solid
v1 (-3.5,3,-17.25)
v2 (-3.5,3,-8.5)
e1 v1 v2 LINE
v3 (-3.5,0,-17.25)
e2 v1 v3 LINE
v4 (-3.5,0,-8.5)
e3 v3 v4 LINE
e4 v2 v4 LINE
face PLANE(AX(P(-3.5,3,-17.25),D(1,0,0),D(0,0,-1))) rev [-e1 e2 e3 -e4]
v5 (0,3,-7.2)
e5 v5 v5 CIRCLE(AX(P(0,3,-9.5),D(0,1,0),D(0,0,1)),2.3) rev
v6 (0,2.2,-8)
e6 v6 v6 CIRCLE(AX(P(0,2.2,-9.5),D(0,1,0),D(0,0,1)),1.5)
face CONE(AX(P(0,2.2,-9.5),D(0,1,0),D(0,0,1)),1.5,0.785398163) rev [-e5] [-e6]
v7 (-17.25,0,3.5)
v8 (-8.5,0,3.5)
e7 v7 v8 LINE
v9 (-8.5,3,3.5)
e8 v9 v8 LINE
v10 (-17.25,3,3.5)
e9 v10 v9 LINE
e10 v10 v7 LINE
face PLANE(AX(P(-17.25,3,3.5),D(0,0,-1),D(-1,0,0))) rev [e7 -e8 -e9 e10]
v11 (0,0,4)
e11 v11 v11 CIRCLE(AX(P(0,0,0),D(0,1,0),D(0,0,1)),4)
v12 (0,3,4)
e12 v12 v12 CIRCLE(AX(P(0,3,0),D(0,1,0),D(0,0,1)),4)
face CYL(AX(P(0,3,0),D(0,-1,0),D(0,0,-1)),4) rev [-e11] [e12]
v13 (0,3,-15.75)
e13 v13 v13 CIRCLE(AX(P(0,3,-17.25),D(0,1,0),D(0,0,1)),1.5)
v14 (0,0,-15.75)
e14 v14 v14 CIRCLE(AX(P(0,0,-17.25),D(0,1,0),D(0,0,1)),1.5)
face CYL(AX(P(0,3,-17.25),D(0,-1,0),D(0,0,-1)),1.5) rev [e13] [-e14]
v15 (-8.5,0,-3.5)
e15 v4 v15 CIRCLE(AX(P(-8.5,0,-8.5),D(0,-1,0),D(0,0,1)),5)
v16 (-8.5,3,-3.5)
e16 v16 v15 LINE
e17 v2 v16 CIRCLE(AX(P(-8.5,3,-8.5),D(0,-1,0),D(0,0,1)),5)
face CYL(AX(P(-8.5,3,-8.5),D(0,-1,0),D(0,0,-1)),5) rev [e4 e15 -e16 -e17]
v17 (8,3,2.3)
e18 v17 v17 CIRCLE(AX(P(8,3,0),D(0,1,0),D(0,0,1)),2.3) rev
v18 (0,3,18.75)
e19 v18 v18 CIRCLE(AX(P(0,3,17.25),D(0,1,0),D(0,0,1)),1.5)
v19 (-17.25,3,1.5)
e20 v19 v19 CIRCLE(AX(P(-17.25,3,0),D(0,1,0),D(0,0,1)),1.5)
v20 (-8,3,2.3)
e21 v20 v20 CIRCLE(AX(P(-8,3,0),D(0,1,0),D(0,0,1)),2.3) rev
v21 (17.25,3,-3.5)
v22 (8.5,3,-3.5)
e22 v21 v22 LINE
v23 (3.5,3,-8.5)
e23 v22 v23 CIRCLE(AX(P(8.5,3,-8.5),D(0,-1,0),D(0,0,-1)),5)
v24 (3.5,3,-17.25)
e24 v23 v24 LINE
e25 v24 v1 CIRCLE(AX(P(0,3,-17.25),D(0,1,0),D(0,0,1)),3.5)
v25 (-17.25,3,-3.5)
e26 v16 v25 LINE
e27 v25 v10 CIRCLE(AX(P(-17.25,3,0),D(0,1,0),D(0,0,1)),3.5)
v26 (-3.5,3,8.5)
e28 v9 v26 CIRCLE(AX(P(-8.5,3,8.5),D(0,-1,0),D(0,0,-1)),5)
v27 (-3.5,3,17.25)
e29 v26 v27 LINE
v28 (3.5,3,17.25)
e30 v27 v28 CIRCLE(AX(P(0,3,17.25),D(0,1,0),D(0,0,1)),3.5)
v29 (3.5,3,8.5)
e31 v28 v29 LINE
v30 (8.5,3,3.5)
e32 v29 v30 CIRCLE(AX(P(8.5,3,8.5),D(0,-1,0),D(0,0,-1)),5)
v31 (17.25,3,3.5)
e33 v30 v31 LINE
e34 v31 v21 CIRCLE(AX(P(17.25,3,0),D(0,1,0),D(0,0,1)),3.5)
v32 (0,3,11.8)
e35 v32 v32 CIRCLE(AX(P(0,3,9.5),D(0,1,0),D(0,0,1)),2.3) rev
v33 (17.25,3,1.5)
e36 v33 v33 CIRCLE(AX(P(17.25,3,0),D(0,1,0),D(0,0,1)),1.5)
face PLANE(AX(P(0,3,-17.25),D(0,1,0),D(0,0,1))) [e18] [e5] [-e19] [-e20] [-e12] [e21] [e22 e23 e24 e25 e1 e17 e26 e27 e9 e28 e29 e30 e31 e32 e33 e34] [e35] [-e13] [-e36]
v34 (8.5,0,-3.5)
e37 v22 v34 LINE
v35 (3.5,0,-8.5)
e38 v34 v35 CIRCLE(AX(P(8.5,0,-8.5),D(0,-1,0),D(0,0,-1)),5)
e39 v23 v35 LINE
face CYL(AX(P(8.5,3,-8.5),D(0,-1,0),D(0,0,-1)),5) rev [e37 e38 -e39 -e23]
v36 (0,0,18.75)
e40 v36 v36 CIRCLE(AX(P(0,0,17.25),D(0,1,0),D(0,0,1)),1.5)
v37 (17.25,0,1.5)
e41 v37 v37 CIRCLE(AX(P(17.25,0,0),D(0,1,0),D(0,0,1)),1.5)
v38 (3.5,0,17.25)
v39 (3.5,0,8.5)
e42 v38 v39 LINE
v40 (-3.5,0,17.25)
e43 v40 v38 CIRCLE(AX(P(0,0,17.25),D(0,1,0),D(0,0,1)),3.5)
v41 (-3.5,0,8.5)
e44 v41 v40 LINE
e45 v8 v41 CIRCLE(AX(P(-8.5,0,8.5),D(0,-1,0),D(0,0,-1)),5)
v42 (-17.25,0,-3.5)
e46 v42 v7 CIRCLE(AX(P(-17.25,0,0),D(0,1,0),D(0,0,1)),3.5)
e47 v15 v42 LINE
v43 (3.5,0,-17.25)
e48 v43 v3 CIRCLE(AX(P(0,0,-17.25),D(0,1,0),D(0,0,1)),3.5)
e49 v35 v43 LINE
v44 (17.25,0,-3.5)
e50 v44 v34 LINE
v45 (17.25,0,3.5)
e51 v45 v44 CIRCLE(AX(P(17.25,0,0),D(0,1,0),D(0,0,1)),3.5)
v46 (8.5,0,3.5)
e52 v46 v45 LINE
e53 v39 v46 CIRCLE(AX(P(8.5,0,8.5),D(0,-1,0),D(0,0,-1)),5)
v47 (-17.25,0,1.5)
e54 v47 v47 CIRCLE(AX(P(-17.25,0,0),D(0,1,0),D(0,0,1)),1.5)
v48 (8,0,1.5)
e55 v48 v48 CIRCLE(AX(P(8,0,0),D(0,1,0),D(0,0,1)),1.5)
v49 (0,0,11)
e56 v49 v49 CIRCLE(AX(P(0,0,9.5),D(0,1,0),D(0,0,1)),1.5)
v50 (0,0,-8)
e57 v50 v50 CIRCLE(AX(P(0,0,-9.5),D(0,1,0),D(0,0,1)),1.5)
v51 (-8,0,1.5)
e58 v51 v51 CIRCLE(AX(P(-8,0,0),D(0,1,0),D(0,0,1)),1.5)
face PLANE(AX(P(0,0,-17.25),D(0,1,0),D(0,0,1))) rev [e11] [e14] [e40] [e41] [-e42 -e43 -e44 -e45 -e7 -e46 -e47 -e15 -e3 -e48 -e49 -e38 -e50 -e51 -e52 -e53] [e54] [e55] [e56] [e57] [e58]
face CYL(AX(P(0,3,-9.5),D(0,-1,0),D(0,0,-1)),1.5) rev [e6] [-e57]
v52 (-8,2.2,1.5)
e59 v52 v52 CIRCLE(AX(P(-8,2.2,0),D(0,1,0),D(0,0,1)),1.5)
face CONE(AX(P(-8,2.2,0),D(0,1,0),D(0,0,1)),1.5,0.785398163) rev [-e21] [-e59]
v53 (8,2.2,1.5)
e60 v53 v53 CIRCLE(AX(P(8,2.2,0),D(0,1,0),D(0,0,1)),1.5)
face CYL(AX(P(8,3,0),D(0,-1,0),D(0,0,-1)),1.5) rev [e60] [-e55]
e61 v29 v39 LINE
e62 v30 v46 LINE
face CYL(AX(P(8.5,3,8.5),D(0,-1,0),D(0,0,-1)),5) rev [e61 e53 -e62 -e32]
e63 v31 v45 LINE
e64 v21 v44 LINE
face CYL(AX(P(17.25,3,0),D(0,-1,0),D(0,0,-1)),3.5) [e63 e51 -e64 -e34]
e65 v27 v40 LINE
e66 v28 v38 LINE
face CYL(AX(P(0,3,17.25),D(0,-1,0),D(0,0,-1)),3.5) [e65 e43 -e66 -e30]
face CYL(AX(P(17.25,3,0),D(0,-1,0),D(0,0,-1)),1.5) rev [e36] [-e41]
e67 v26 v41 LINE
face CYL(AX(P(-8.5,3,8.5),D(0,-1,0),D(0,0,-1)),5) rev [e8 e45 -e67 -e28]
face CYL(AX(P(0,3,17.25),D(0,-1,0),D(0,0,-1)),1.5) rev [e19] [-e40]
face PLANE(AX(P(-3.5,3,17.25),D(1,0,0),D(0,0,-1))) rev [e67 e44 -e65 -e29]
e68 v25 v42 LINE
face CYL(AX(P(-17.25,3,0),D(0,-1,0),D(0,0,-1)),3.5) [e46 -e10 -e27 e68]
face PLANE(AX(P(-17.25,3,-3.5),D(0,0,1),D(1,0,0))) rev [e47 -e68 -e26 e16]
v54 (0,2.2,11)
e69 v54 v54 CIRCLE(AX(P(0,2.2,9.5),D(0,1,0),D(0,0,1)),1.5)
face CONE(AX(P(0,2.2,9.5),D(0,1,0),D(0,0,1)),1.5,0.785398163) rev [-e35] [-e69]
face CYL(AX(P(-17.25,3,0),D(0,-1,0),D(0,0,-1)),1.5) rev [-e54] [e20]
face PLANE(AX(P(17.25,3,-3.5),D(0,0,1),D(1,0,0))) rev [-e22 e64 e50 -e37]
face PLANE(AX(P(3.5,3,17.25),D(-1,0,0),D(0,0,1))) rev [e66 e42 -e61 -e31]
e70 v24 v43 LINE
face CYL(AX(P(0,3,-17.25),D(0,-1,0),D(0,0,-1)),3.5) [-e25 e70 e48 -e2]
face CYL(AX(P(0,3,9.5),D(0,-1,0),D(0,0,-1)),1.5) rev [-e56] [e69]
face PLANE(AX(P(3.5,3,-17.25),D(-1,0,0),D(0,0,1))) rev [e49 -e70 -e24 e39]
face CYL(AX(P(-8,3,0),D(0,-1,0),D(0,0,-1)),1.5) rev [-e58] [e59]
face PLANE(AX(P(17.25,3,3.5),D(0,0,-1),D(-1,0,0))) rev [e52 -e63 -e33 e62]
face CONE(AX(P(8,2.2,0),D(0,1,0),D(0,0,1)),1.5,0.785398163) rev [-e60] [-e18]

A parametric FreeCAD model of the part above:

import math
import FreeCAD as App
import Part
import Sketcher


def edges_at(feature, points):
    """Names of the edges that pass closest to the given points."""
    edges = feature.Shape.Edges
    near = lambda p: min(range(len(edges)), key=lambda i: edges[i].distToShape(Part.Vertex(*p))[0])
    return sorted({f"Edge{near(p) + 1}" for p in points})

doc = App.newDocument("Part")
body = doc.addObject("PartDesign::Body", "Body")

sketch1 = body.newObject("Sketcher::SketchObject", "Sketch")
sketch1.AttachmentSupport = (doc.getObject("XZ_Plane"), [""])
sketch1.MapMode = "FlatFace"
sketch1.addGeometry(Part.LineSegment(App.Vector(-3.5, -17.2, 0), App.Vector(-3.5, -8.5, 0)), False)
sketch1.addGeometry(Part.ArcOfCircle(Part.Circle(App.Vector(-8.5, -8.5, 0), App.Vector(0, 0, 1), 5), math.radians(0), math.radians(90)), False)
sketch1.addGeometry(Part.LineSegment(App.Vector(-8.5, -3.5, 0), App.Vector(-17.2, -3.5, 0)), False)
sketch1.addGeometry(Part.ArcOfCircle(Part.Circle(App.Vector(-17.2, 0, 0), App.Vector(0, 0, 1), 3.5), math.radians(90), math.radians(270)), False)
sketch1.addGeometry(Part.LineSegment(App.Vector(-17.2, 3.5, 0), App.Vector(-8.5, 3.5, 0)), False)
sketch1.addGeometry(Part.ArcOfCircle(Part.Circle(App.Vector(-8.5, 8.5, 0), App.Vector(0, 0, 1), 5), math.radians(-90), math.radians(0)), False)
sketch1.addGeometry(Part.LineSegment(App.Vector(-3.5, 8.5, 0), App.Vector(-3.5, 17.2, 0)), False)
sketch1.addGeometry(Part.ArcOfCircle(Part.Circle(App.Vector(0, 17.2, 0), App.Vector(0, 0, 1), 3.5), math.radians(0), math.radians(180)), False)
sketch1.addGeometry(Part.LineSegment(App.Vector(3.5, 17.2, 0), App.Vector(3.5, 8.5, 0)), False)
sketch1.addGeometry(Part.ArcOfCircle(Part.Circle(App.Vector(8.5, 8.5, 0), App.Vector(0, 0, 1), 5), math.radians(180), math.radians(270)), False)
sketch1.addGeometry(Part.LineSegment(App.Vector(8.5, 3.5, 0), App.Vector(17.2, 3.5, 0)), False)
sketch1.addGeometry(Part.ArcOfCircle(Part.Circle(App.Vector(17.2, 0, 0), App.Vector(0, 0, 1), 3.5), math.radians(-90), math.radians(90)), False)
sketch1.addGeometry(Part.LineSegment(App.Vector(17.2, -3.5, 0), App.Vector(8.5, -3.5, 0)), False)
sketch1.addGeometry(Part.ArcOfCircle(Part.Circle(App.Vector(8.5, -8.5, 0), App.Vector(0, 0, 1), 5), math.radians(90), math.radians(180)), False)
sketch1.addGeometry(Part.LineSegment(App.Vector(3.5, -8.5, 0), App.Vector(3.5, -17.2, 0)), False)
sketch1.addGeometry(Part.ArcOfCircle(Part.Circle(App.Vector(0, -17.2, 0), App.Vector(0, 0, 1), 3.5), math.radians(180), math.radians(360)), False)
sketch1.addGeometry(Part.Circle(App.Vector(0, 17.2, 0), App.Vector(0, 0, 1), 1.5), False)
sketch1.addGeometry(Part.Circle(App.Vector(0, 9.5, 0), App.Vector(0, 0, 1), 1.5), False)
sketch1.addGeometry(Part.Circle(App.Vector(-17.2, 0, 0), App.Vector(0, 0, 1), 1.5), False)
sketch1.addGeometry(Part.Circle(App.Vector(-8, 0, 0), App.Vector(0, 0, 1), 1.5), False)
sketch1.addGeometry(Part.Circle(App.Vector(0, 0, 0), App.Vector(0, 0, 1), 4), False)
sketch1.addGeometry(Part.Circle(App.Vector(8, 0, 0), App.Vector(0, 0, 1), 1.5), False)
sketch1.addGeometry(Part.Circle(App.Vector(17.2, 0, 0), App.Vector(0, 0, 1), 1.5), False)
sketch1.addGeometry(Part.Circle(App.Vector(0, -9.5, 0), App.Vector(0, 0, 1), 1.5), False)
sketch1.addGeometry(Part.Circle(App.Vector(0, -17.2, 0), App.Vector(0, 0, 1), 1.5), False)
sketch1.addConstraint(Sketcher.Constraint("Tangent", 0, 2, 1, 1))
sketch1.addConstraint(Sketcher.Constraint("Tangent", 1, 2, 2, 1))
sketch1.addConstraint(Sketcher.Constraint("Tangent", 2, 2, 3, 2))
sketch1.addConstraint(Sketcher.Constraint("Tangent", 3, 1, 4, 1))
sketch1.addConstraint(Sketcher.Constraint("Tangent", 4, 2, 5, 1))
sketch1.addConstraint(Sketcher.Constraint("Tangent", 5, 2, 6, 1))
sketch1.addConstraint(Sketcher.Constraint("Tangent", 6, 2, 7, 2))
sketch1.addConstraint(Sketcher.Constraint("Tangent", 7, 1, 8, 1))
sketch1.addConstraint(Sketcher.Constraint("Tangent", 8, 2, 9, 1))
sketch1.addConstraint(Sketcher.Constraint("Tangent", 9, 2, 10, 1))
sketch1.addConstraint(Sketcher.Constraint("Tangent", 10, 2, 11, 2))
sketch1.addConstraint(Sketcher.Constraint("Tangent", 11, 1, 12, 1))
sketch1.addConstraint(Sketcher.Constraint("Tangent", 12, 2, 13, 1))
sketch1.addConstraint(Sketcher.Constraint("Tangent", 13, 2, 14, 1))
sketch1.addConstraint(Sketcher.Constraint("Tangent", 14, 2, 15, 2))
sketch1.addConstraint(Sketcher.Constraint("Tangent", 15, 1, 0, 1))
sketch1.addConstraint(Sketcher.Constraint("Vertical", 0))
sketch1.addConstraint(Sketcher.Constraint("Horizontal", 2))
sketch1.addConstraint(Sketcher.Constraint("Horizontal", 4))
sketch1.addConstraint(Sketcher.Constraint("Vertical", 6))
sketch1.addConstraint(Sketcher.Constraint("Vertical", 8))
sketch1.addConstraint(Sketcher.Constraint("Horizontal", 10))
sketch1.addConstraint(Sketcher.Constraint("Horizontal", 12))
sketch1.addConstraint(Sketcher.Constraint("Vertical", 14))
sketch1.addConstraint(Sketcher.Constraint("Coincident", 20, 3, -1, 1))
sketch1.addConstraint(Sketcher.Constraint("Coincident", 16, 3, 7, 3))
sketch1.addConstraint(Sketcher.Constraint("Coincident", 18, 3, 3, 3))
sketch1.addConstraint(Sketcher.Constraint("Coincident", 22, 3, 11, 3))
sketch1.addConstraint(Sketcher.Constraint("Coincident", 24, 3, 15, 3))
sketch1.addConstraint(Sketcher.Constraint("Equal", 1, 5))
sketch1.addConstraint(Sketcher.Constraint("Equal", 3, 7))
sketch1.addConstraint(Sketcher.Constraint("Equal", 5, 9))
sketch1.addConstraint(Sketcher.Constraint("Equal", 7, 11))
sketch1.addConstraint(Sketcher.Constraint("Equal", 9, 13))
sketch1.addConstraint(Sketcher.Constraint("Equal", 11, 15))
sketch1.addConstraint(Sketcher.Constraint("Equal", 16, 17))
sketch1.addConstraint(Sketcher.Constraint("Equal", 17, 18))
sketch1.addConstraint(Sketcher.Constraint("Equal", 18, 19))
sketch1.addConstraint(Sketcher.Constraint("Equal", 19, 21))
sketch1.addConstraint(Sketcher.Constraint("Equal", 21, 22))
sketch1.addConstraint(Sketcher.Constraint("Equal", 22, 23))
sketch1.addConstraint(Sketcher.Constraint("Equal", 23, 24))
sketch1.addConstraint(Sketcher.Constraint("Symmetric", 1, 3, 9, 3, -1, 1))
sketch1.addConstraint(Sketcher.Constraint("Symmetric", 19, 3, 21, 3, -1, 1))
sketch1.addConstraint(Sketcher.Constraint("Symmetric", 17, 3, 23, 3, -1, 1))
sketch1.addConstraint(Sketcher.Constraint("Symmetric", 5, 3, 9, 3, -2))
sketch1.addConstraint(Sketcher.Constraint("PointOnObject", 17, 3, -2))
sketch1.addConstraint(Sketcher.Constraint("PointOnObject", 19, 3, -1))
sketch1.addConstraint(Sketcher.Constraint("Equal", 4, 10))
sketch1.addConstraint(Sketcher.Constraint("Equal", 12, 0))
sketch1.addConstraint(Sketcher.Constraint("Equal", 0, 6))
sketch1.addConstraint(Sketcher.Constraint("Diameter", 16, 3.0))
sketch1.addConstraint(Sketcher.Constraint("Diameter", 20, 8.0))
sketch1.addConstraint(Sketcher.Constraint("Radius", 1, 5.0))
sketch1.addConstraint(Sketcher.Constraint("Radius", 3, 3.5))
sketch1.addConstraint(Sketcher.Constraint("DistanceX", 19, 3, -1, 1, 8.0))
sketch1.addConstraint(Sketcher.Constraint("DistanceY", 5, 3, 17, 3, 1.0))
sketch1.addConstraint(Sketcher.Constraint("DistanceX", 2, 2, 2, 1, 8.75))
pad1 = body.newObject("PartDesign::Pad", "Pad")
pad1.Profile = sketch1
pad1.Length = 3
pad1.Reversed = True
doc.recompute()

chamfer = body.newObject("PartDesign::Chamfer", "Chamfer")
chamfer.Base = (pad1, edges_at(pad1, [
    (-9.5, 3, 0),
    (6.5, 3, 0),
    (-1.5, 3, -9.5),
    (-1.5, 3, 9.5),
]))
chamfer.Size = 0.8

doc.recompute()
